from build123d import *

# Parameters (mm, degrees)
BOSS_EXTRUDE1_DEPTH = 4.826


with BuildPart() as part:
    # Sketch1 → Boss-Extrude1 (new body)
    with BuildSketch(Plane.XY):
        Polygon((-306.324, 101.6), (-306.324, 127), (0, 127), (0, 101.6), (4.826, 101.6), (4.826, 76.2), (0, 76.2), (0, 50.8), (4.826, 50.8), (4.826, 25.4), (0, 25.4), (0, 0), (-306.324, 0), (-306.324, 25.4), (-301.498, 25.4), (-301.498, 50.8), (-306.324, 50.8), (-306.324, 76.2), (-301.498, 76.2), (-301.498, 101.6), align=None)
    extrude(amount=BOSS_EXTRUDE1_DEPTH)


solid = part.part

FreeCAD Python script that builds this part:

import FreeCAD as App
import Part
import Sketcher

V = App.Vector
Q = App.Units.Quantity


def add_polygon(sketch, points):
    """Adds a closed chain of lines whose ends are joined by coincident constraints."""
    first, n = sketch.GeometryCount, len(points)
    for a, b in zip(points, points[1:] + points[:1]):
        sketch.addGeometry(Part.LineSegment(App.Vector(*a, 0), App.Vector(*b, 0)), False)
    for i in range(n):
        sketch.addConstraint(Sketcher.Constraint("Coincident", first + i, 2, first + (i + 1) % n, 1))

doc = App.newDocument("Part")
body = doc.addObject("PartDesign::Body", "Body")

# Sketch on XY plane
sketch1 = doc.addObject("Sketcher::SketchObject", "Sketch")
body.addObject(sketch1)
sketch1.AttachmentSupport = (doc.XY_Plane, [""])
sketch1.MapMode = "FlatFace"
add_polygon(sketch1, [(-306.3, 127), (-306.3, 101.6), (-301.5, 101.6), (-301.5, 76.2), (-306.3, 76.2), (-306.3, 50.8), (-301.5, 50.8), (-301.5, 25.4), (-306.3, 25.4), (-306.3, 0), (0, 0), (0, 25.4), (4.8, 25.4), (4.8, 50.8), (0, 50.8), (0, 76.2), (4.8, 76.2), (4.8, 101.6), (0, 101.6), (0, 127)])  # lines 0-19
sketch1.addConstraint(Sketcher.Constraint("Vertical", 0))
sketch1.addConstraint(Sketcher.Constraint("Horizontal", 1))
sketch1.addConstraint(Sketcher.Constraint("Vertical", 2))
sketch1.addConstraint(Sketcher.Constraint("Horizontal", 3))
sketch1.addConstraint(Sketcher.Constraint("Vertical", 4))
sketch1.addConstraint(Sketcher.Constraint("Horizontal", 5))
sketch1.addConstraint(Sketcher.Constraint("Vertical", 6))
sketch1.addConstraint(Sketcher.Constraint("Horizontal", 7))
sketch1.addConstraint(Sketcher.Constraint("Vertical", 8))
sketch1.addConstraint(Sketcher.Constraint("Horizontal", 9))
sketch1.addConstraint(Sketcher.Constraint("Vertical", 10))
sketch1.addConstraint(Sketcher.Constraint("Horizontal", 11))
sketch1.addConstraint(Sketcher.Constraint("Vertical", 12))
sketch1.addConstraint(Sketcher.Constraint("Horizontal", 13))
sketch1.addConstraint(Sketcher.Constraint("Vertical", 14))
sketch1.addConstraint(Sketcher.Constraint("Horizontal", 15))
sketch1.addConstraint(Sketcher.Constraint("Vertical", 16))
sketch1.addConstraint(Sketcher.Constraint("Horizontal", 17))
sketch1.addConstraint(Sketcher.Constraint("Vertical", 18))
sketch1.addConstraint(Sketcher.Constraint("Horizontal", 19))
sketch1.addConstraint(Sketcher.Constraint("Coincident", 9, 2, -1, 1))
sketch1.addConstraint(Sketcher.Constraint("PointOnObject", 13, 2, -2))
sketch1.addConstraint(Sketcher.Constraint("PointOnObject", 17, 2, -2))
sketch1.addConstraint(Sketcher.Constraint("Horizontal", 7, 2, 10, 2))
sketch1.addConstraint(Sketcher.Constraint("Horizontal", 5, 2, 12, 2))
sketch1.addConstraint(Sketcher.Constraint("Horizontal", 3, 2, 14, 2))
sketch1.addConstraint(Sketcher.Constraint("Horizontal", 1, 2, 16, 2))
sketch1.addConstraint(Sketcher.Constraint("Vertical", 0, 2, 3, 2))
sketch1.addConstraint(Sketcher.Constraint("Vertical", 2, 2, 5, 2))
sketch1.addConstraint(Sketcher.Constraint("Vertical", 4, 2, 7, 2))
sketch1.addConstraint(Sketcher.Constraint("Vertical", 12, 2, 15, 2))
sketch1.addConstraint(Sketcher.Constraint("Equal", 7, 11))
sketch1.addConstraint(Sketcher.Constraint("Equal", 0, 2))
sketch1.addConstraint(Sketcher.Constraint("Equal", 2, 4))
sketch1.addConstraint(Sketcher.Constraint("Equal", 4, 6))
sketch1.addConstraint(Sketcher.Constraint("Equal", 6, 8))
sketch1.addConstraint(Sketcher.Constraint("DistanceY", 0, 2, 0, 1, Q("1 in")))
sketch1.addConstraint(Sketcher.Constraint("DistanceX", 1, 1, 1, 2, Q("0.19 in")))
sketch1.addConstraint(Sketcher.Constraint("DistanceX", 9, 1, 9, 2, Q("12.06 in")))
pad1 = doc.addObject("PartDesign::Pad", "Pad")
body.addObject(pad1)
pad1.Profile = sketch1
pad1.Length = Q("0.19 in")

doc.recompute()
